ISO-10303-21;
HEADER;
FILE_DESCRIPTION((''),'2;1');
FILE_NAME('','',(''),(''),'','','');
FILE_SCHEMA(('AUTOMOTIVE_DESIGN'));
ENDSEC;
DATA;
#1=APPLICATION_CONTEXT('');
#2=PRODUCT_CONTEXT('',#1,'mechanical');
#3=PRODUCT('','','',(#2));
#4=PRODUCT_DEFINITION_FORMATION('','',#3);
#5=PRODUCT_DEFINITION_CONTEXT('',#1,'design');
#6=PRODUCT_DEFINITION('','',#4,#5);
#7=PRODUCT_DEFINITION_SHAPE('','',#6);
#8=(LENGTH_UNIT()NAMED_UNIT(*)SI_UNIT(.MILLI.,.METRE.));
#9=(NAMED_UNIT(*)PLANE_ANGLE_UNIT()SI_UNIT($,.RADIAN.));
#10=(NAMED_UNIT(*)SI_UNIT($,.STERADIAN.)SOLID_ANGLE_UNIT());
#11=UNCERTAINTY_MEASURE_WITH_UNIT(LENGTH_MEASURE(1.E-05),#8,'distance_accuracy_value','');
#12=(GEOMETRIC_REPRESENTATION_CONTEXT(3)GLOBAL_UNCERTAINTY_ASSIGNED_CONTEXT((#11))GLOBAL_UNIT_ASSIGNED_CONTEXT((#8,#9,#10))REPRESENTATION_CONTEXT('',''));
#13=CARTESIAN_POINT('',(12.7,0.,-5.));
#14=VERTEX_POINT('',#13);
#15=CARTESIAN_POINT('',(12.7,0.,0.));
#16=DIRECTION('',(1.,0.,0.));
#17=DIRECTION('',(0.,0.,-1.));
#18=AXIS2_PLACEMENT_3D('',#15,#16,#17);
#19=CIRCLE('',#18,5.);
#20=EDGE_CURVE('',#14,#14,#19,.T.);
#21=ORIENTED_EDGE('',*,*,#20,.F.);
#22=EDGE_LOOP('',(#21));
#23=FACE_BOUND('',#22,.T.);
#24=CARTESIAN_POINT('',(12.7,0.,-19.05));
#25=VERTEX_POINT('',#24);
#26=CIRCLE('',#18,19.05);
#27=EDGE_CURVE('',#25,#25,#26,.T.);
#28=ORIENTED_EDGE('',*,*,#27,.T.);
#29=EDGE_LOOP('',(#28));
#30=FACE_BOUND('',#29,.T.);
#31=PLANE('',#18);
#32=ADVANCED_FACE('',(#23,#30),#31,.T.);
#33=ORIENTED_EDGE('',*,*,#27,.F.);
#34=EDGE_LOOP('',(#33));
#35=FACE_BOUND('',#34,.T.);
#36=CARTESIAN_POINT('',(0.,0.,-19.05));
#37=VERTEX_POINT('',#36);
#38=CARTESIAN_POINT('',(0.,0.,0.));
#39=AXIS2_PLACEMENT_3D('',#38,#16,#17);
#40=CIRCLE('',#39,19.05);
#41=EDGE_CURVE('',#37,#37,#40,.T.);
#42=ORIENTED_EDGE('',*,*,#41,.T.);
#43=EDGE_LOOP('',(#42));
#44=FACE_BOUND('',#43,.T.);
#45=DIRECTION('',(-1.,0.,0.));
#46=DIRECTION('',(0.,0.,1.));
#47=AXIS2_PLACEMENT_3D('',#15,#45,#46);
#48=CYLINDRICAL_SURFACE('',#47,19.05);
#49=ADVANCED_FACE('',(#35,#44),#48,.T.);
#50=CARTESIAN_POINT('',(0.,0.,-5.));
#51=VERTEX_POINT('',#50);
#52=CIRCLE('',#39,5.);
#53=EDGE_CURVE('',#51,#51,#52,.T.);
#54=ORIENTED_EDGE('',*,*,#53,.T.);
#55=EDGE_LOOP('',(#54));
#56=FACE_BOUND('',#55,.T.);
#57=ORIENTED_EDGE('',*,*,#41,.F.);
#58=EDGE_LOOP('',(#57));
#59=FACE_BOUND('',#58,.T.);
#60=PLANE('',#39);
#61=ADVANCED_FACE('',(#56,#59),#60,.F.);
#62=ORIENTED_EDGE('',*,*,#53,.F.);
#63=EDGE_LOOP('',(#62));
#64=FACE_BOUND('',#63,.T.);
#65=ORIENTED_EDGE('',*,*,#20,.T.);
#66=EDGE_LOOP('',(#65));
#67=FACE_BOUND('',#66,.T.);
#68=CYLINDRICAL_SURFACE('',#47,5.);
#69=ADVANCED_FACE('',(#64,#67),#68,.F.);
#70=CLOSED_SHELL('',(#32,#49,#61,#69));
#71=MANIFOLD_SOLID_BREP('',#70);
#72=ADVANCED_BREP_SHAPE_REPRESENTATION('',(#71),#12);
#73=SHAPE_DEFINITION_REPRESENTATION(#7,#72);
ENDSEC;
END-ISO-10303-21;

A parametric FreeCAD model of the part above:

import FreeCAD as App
import Part
import Sketcher

V = App.Vector
Q = App.Units.Quantity

doc = App.newDocument("Part")
params = doc.addObject("Spreadsheet::Sheet", "Params")
for row, (alias, value) in enumerate([
    ("sketch1_diameter", "1.5 in"),
    ("pad1_length", "0.5 in"),
], start=1):
    params.set(f"A{row}", alias)
    params.set(f"B{row}", "=" + value)
    params.setAlias(f"B{row}", alias)

body = doc.addObject("PartDesign::Body", "Body")

# Sketch on YZ plane
sketch1 = doc.addObject("Sketcher::SketchObject", "Sketch")
body.addObject(sketch1)
sketch1.AttachmentSupport = (doc.YZ_Plane, [""])
sketch1.MapMode = "FlatFace"
sketch1.addGeometry([
    Part.Circle(V(0, 0, 0), V(0, 0, 1), 19),
    Part.Circle(V(0, 0, 0), V(0, 0, 1), 5),
], False)
sketch1.addConstraint([
    Sketcher.Constraint("Coincident", 0, 3, -1, 1),
    Sketcher.Constraint("Coincident", 1, 3, -1, 1),
    Sketcher.Constraint("Diameter", 0, Q("1.5 in")),
    Sketcher.Constraint("Diameter", 1, Q("10 mm")),
])
sketch1.setExpression("Constraints[2]", "Params.sketch1_diameter")
pad1 = doc.addObject("PartDesign::Pad", "Pad")
body.addObject(pad1)
pad1.Profile = sketch1
pad1.setExpression("Length", "Params.pad1_length")

doc.recompute()
